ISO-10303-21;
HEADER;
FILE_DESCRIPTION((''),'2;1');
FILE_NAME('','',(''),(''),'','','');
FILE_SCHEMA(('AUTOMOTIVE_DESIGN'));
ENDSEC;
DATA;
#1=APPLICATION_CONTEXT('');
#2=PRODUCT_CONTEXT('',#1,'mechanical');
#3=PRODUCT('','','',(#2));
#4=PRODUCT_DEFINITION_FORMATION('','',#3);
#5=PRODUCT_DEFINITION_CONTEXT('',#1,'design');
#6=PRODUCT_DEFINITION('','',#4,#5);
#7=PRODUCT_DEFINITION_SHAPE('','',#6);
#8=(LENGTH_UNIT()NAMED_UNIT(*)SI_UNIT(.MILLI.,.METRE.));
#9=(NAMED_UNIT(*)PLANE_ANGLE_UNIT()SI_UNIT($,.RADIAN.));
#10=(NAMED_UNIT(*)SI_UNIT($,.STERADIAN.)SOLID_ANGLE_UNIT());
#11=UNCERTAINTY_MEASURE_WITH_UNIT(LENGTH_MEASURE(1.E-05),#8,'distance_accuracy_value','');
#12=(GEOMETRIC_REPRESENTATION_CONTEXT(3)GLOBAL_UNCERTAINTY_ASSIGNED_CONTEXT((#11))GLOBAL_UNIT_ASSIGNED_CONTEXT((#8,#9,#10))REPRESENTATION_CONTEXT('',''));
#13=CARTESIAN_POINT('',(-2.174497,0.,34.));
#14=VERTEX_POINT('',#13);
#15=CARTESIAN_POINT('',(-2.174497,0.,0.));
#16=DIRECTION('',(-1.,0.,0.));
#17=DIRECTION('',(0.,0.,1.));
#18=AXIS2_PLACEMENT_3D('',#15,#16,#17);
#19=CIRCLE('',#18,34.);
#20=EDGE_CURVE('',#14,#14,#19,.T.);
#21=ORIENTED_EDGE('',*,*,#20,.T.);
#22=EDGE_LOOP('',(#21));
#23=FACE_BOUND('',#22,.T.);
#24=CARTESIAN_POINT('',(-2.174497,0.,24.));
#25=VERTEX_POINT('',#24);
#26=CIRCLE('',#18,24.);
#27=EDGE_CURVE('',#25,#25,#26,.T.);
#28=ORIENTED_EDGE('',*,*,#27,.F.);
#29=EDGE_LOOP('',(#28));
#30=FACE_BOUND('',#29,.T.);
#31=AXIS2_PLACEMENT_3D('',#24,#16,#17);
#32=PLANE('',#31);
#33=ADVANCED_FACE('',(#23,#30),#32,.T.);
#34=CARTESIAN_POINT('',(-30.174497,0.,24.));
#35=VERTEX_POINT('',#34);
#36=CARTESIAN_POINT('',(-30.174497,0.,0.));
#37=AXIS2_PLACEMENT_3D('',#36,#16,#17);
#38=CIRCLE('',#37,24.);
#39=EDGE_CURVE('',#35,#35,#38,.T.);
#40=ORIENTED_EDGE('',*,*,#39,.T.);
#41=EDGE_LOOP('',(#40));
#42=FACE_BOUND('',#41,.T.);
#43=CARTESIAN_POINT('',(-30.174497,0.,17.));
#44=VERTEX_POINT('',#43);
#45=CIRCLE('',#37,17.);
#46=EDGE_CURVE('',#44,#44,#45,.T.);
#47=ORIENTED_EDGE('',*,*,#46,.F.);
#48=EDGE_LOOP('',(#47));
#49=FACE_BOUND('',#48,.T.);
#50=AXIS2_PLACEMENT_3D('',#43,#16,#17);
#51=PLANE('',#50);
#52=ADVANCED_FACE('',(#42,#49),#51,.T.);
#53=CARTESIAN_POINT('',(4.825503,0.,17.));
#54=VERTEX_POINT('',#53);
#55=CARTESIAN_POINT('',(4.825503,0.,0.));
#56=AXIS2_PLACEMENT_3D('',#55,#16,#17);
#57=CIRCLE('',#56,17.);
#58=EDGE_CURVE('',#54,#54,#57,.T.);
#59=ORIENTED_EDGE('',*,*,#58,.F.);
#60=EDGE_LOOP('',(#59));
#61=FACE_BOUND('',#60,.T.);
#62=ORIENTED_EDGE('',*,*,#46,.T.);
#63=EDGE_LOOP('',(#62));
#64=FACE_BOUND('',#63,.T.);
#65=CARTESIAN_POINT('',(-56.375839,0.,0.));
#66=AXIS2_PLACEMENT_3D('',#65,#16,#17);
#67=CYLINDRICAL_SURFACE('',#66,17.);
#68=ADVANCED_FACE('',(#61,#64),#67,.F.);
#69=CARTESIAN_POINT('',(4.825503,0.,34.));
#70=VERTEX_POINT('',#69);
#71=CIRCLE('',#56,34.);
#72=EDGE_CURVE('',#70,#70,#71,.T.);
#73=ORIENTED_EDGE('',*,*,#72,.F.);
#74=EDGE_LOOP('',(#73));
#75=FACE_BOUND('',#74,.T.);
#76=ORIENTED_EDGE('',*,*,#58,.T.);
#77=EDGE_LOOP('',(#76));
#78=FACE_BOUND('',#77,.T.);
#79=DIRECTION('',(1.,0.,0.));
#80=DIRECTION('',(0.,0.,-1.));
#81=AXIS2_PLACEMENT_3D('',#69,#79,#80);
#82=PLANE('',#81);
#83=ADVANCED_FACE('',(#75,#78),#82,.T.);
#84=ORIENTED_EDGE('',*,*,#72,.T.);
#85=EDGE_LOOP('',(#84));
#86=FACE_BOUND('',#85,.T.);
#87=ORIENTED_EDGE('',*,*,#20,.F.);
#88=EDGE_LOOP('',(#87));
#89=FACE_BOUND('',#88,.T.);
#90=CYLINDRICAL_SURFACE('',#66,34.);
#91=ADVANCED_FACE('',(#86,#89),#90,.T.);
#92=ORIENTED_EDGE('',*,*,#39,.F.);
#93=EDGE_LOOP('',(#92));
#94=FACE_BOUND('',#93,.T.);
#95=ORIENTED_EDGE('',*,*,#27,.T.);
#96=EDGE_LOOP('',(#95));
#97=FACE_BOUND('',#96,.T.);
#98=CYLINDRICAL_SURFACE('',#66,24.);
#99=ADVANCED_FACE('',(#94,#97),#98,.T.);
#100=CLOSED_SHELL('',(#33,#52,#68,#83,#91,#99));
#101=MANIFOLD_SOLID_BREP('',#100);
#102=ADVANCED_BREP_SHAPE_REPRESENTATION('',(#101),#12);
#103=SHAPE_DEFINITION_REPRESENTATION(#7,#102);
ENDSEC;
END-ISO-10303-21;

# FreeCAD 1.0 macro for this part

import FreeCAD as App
import Part
import Sketcher


def add_polygon(sketch, points):
    """Adds a closed chain of lines whose ends are joined by coincident constraints."""
    first, n = sketch.GeometryCount, len(points)
    for a, b in zip(points, points[1:] + points[:1]):
        sketch.addGeometry(Part.LineSegment(App.Vector(*a, 0), App.Vector(*b, 0)), False)
    for i in range(n):
        sketch.addConstraint(Sketcher.Constraint("Coincident", first + i, 2, first + (i + 1) % n, 1))

doc = App.newDocument("Part")
body = doc.addObject("PartDesign::Body", "Body")

# Sketch on XZ plane
sketch1 = doc.addObject("Sketcher::SketchObject", "Sketch")
body.addObject(sketch1)
sketch1.AttachmentSupport = (doc.XZ_Plane, [""])
sketch1.MapMode = "FlatFace"
add_polygon(sketch1, [(-30.174497, 24), (-2.174497, 24), (-2.174497, 34), (4.825503, 34), (4.825503, 17), (-30.174497, 17)])  # lines 0-5
sketch1.addConstraint(Sketcher.Constraint("Horizontal", 0))
sketch1.addConstraint(Sketcher.Constraint("Vertical", 1))
sketch1.addConstraint(Sketcher.Constraint("Horizontal", 2))
sketch1.addConstraint(Sketcher.Constraint("Vertical", 3))
sketch1.addConstraint(Sketcher.Constraint("Horizontal", 4))
sketch1.addConstraint(Sketcher.Constraint("Vertical", 5))
sketch1.addConstraint(Sketcher.Constraint("Equal", 2, 5))
sketch1.addConstraint(Sketcher.Constraint("DistanceX", 0, 1, 0, 2, 28.0))
sketch1.addConstraint(Sketcher.Constraint("DistanceX", 2, 1, 2, 2, 7.0))
sketch1.addConstraint(Sketcher.Constraint("DistanceY", 1, 1, 1, 2, 10.0))
sketch1.addConstraint(Sketcher.Constraint("DistanceY", -1, 1, 0, 2, 24.0))
sketch1.addConstraint(Sketcher.Constraint("DistanceX", 0, 2, -1, 1, 2.174497))
revolution = doc.addObject("PartDesign::Revolution", "Revolution")
body.addObject(revolution)
revolution.Profile = sketch1
revolution.ReferenceAxis = (sketch1, ["H_Axis"])
revolution.Angle = 360

doc.recompute()
